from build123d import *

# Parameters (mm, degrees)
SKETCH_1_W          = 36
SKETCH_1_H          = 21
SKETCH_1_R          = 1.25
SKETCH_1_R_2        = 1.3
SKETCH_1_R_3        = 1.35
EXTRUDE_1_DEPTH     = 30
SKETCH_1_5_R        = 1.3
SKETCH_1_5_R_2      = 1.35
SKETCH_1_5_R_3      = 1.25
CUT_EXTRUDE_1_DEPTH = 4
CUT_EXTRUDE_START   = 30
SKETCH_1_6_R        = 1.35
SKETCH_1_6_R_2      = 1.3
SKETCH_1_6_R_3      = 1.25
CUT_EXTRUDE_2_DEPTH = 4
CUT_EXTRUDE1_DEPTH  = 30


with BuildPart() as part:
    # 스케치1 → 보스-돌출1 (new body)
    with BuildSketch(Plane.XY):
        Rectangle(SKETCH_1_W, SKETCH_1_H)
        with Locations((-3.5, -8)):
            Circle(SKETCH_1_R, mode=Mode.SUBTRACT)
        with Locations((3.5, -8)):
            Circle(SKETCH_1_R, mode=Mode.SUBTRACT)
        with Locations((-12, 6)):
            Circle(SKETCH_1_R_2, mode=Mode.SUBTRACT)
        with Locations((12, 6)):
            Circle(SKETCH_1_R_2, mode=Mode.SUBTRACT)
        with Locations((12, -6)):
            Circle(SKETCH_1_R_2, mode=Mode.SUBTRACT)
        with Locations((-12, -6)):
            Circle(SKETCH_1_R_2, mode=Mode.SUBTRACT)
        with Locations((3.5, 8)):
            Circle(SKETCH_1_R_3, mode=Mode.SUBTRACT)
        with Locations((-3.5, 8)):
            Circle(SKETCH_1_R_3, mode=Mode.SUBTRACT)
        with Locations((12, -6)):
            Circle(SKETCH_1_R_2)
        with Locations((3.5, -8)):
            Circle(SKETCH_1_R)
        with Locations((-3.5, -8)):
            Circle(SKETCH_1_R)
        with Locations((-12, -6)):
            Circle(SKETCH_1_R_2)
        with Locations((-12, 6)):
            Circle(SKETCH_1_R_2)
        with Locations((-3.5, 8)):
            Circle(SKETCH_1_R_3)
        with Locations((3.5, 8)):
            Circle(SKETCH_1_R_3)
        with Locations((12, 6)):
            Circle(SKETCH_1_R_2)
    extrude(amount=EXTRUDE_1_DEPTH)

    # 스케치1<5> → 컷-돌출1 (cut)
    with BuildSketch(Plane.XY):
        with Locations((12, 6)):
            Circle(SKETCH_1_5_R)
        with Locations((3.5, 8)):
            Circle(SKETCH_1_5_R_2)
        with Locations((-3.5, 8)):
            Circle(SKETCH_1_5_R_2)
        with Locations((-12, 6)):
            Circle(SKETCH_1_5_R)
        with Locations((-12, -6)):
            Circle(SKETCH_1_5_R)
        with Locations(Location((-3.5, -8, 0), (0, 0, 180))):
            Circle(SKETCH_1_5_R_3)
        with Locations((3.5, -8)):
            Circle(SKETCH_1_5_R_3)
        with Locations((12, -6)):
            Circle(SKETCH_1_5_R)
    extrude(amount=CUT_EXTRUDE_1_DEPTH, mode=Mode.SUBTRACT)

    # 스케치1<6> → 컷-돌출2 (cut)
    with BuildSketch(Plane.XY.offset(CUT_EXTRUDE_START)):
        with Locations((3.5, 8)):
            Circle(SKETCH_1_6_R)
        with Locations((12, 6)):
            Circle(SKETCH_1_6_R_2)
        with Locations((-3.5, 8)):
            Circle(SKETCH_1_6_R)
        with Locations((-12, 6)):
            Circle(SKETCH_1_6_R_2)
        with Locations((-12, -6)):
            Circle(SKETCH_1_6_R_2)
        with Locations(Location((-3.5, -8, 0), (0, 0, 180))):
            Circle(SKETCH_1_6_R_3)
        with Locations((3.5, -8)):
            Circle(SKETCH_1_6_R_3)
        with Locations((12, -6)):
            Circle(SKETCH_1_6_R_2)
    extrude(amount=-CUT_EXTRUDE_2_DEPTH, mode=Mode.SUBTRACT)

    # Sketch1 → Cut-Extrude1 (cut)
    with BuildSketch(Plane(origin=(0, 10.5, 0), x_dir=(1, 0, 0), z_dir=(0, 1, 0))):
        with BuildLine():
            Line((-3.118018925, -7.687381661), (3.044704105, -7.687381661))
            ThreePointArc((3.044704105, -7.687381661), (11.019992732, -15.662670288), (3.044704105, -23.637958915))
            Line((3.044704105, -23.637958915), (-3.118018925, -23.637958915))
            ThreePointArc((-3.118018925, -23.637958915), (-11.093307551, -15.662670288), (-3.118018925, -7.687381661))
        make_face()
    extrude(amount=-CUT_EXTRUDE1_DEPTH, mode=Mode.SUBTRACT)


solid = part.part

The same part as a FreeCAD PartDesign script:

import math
import FreeCAD as App
import Part
import Sketcher


def add_polygon(sketch, points):
    """Adds a closed chain of lines whose ends are joined by coincident constraints."""
    first, n = sketch.GeometryCount, len(points)
    for a, b in zip(points, points[1:] + points[:1]):
        sketch.addGeometry(Part.LineSegment(App.Vector(*a, 0), App.Vector(*b, 0)), False)
    for i in range(n):
        sketch.addConstraint(Sketcher.Constraint("Coincident", first + i, 2, first + (i + 1) % n, 1))

doc = App.newDocument("Part")
body = doc.addObject("PartDesign::Body", "Body")

sketch1 = body.newObject("Sketcher::SketchObject", "Sketch")
sketch1.AttachmentSupport = (doc.getObject("XY_Plane"), [""])
sketch1.MapMode = "FlatFace"
add_polygon(sketch1, [(-18, 10.5), (-18, -10.5), (18, -10.5), (18, 10.5)])
sketch1.addConstraint(Sketcher.Constraint("Vertical", 0))
sketch1.addConstraint(Sketcher.Constraint("Horizontal", 1))
sketch1.addConstraint(Sketcher.Constraint("Vertical", 2))
sketch1.addConstraint(Sketcher.Constraint("Horizontal", 3))
sketch1.addConstraint(Sketcher.Constraint("Symmetric", 0, 2, 2, 2, -1, 1))
sketch1.addConstraint(Sketcher.Constraint("DistanceX", 1, 1, 1, 2, 36.0))
sketch1.addConstraint(Sketcher.Constraint("DistanceY", 0, 2, 0, 1, 21.0))
pad1 = body.newObject("PartDesign::Pad", "Pad")
pad1.Profile = sketch1
pad1.Length = 30

sketch2 = body.newObject("Sketcher::SketchObject", "Sketch001")
sketch2.AttachmentSupport = (doc.getObject("XY_Plane"), [""])
sketch2.MapMode = "FlatFace"
sketch2.addGeometry(Part.Circle(App.Vector(12, 6, 0), App.Vector(0, 0, 1), 1.3), False)
sketch2.addGeometry(Part.Circle(App.Vector(3.5, 8, 0), App.Vector(0, 0, 1), 1.35), False)
sketch2.addGeometry(Part.Circle(App.Vector(-3.5, 8, 0), App.Vector(0, 0, 1), 1.35), False)
sketch2.addGeometry(Part.Circle(App.Vector(-12, 6, 0), App.Vector(0, 0, 1), 1.3), False)
sketch2.addGeometry(Part.Circle(App.Vector(-12, -6, 0), App.Vector(0, 0, 1), 1.3), False)
sketch2.addGeometry(Part.Circle(App.Vector(-3.5, -8, 0), App.Vector(0, 0, 1), 1.25), False)
sketch2.addGeometry(Part.Circle(App.Vector(3.5, -8, 0), App.Vector(0, 0, 1), 1.25), False)
sketch2.addGeometry(Part.Circle(App.Vector(12, -6, 0), App.Vector(0, 0, 1), 1.3), False)
sketch2.addConstraint(Sketcher.Constraint("Equal", 1, 2))
sketch2.addConstraint(Sketcher.Constraint("Equal", 0, 3))
sketch2.addConstraint(Sketcher.Constraint("Equal", 3, 4))
sketch2.addConstraint(Sketcher.Constraint("Equal", 5, 6))
sketch2.addConstraint(Sketcher.Constraint("Equal", 4, 7))
sketch2.addConstraint(Sketcher.Constraint("Symmetric", 0, 3, 4, 3, -1, 1))
sketch2.addConstraint(Sketcher.Constraint("Symmetric", 1, 3, 5, 3, -1, 1))
sketch2.addConstraint(Sketcher.Constraint("Symmetric", 2, 3, 6, 3, -1, 1))
sketch2.addConstraint(Sketcher.Constraint("Symmetric", 3, 3, 7, 3, -1, 1))
sketch2.addConstraint(Sketcher.Constraint("Symmetric", 1, 3, 2, 3, -2))
sketch2.addConstraint(Sketcher.Constraint("Symmetric", 0, 3, 3, 3, -2))
sketch2.addConstraint(Sketcher.Constraint("Diameter", 0, 2.6))
sketch2.addConstraint(Sketcher.Constraint("Diameter", 1, 2.7))
sketch2.addConstraint(Sketcher.Constraint("Diameter", 5, 2.5))
sketch2.addConstraint(Sketcher.Constraint("DistanceX", -1, 1, 0, 3, 12.0))
sketch2.addConstraint(Sketcher.Constraint("DistanceY", -1, 1, 0, 3, 6.0))
sketch2.addConstraint(Sketcher.Constraint("DistanceY", -1, 1, 1, 3, 8.0))
sketch2.addConstraint(Sketcher.Constraint("DistanceX", 2, 3, 1, 3, 7.0))
pocket1 = body.newObject("PartDesign::Pocket", "Pocket")
pocket1.Profile = sketch2
pocket1.Length = 4
pocket1.Reversed = True

sketch3 = body.newObject("Sketcher::SketchObject", "Sketch002")
sketch3.AttachmentSupport = (doc.getObject("XY_Plane"), [""])
sketch3.MapMode = "FlatFace"
sketch3.AttachmentOffset = App.Placement(App.Vector(0, 0, 30), App.Rotation())
sketch3.addGeometry(Part.Circle(App.Vector(3.5, 8, 0), App.Vector(0, 0, 1), 1.35), False)
sketch3.addGeometry(Part.Circle(App.Vector(12, 6, 0), App.Vector(0, 0, 1), 1.3), False)
sketch3.addGeometry(Part.Circle(App.Vector(-3.5, 8, 0), App.Vector(0, 0, 1), 1.35), False)
sketch3.addGeometry(Part.Circle(App.Vector(-12, 6, 0), App.Vector(0, 0, 1), 1.3), False)
sketch3.addGeometry(Part.Circle(App.Vector(-12, -6, 0), App.Vector(0, 0, 1), 1.3), False)
sketch3.addGeometry(Part.Circle(App.Vector(-3.5, -8, 0), App.Vector(0, 0, 1), 1.25), False)
sketch3.addGeometry(Part.Circle(App.Vector(3.5, -8, 0), App.Vector(0, 0, 1), 1.25), False)
sketch3.addGeometry(Part.Circle(App.Vector(12, -6, 0), App.Vector(0, 0, 1), 1.3), False)
sketch3.addConstraint(Sketcher.Constraint("Equal", 0, 2))
sketch3.addConstraint(Sketcher.Constraint("Equal", 1, 3))
sketch3.addConstraint(Sketcher.Constraint("Equal", 3, 4))
sketch3.addConstraint(Sketcher.Constraint("Equal", 5, 6))
sketch3.addConstraint(Sketcher.Constraint("Equal", 4, 7))
sketch3.addConstraint(Sketcher.Constraint("Symmetric", 1, 3, 4, 3, -1, 1))
sketch3.addConstraint(Sketcher.Constraint("Symmetric", 0, 3, 5, 3, -1, 1))
sketch3.addConstraint(Sketcher.Constraint("Symmetric", 2, 3, 6, 3, -1, 1))
sketch3.addConstraint(Sketcher.Constraint("Symmetric", 3, 3, 7, 3, -1, 1))
sketch3.addConstraint(Sketcher.Constraint("Symmetric", 0, 3, 2, 3, -2))
sketch3.addConstraint(Sketcher.Constraint("Symmetric", 1, 3, 3, 3, -2))
sketch3.addConstraint(Sketcher.Constraint("Diameter", 0, 2.7))
sketch3.addConstraint(Sketcher.Constraint("Diameter", 1, 2.6))
sketch3.addConstraint(Sketcher.Constraint("Diameter", 5, 2.5))
sketch3.addConstraint(Sketcher.Constraint("DistanceY", -1, 1, 0, 3, 8.0))
sketch3.addConstraint(Sketcher.Constraint("DistanceX", -1, 1, 1, 3, 12.0))
sketch3.addConstraint(Sketcher.Constraint("DistanceY", -1, 1, 1, 3, 6.0))
sketch3.addConstraint(Sketcher.Constraint("DistanceX", 2, 3, 0, 3, 7.0))
pocket2 = body.newObject("PartDesign::Pocket", "Pocket001")
pocket2.Profile = sketch3
pocket2.Length = 4

sketch4 = body.newObject("Sketcher::SketchObject", "Sketch003")
sketch4.AttachmentSupport = (doc.getObject("XZ_Plane"), [""])
sketch4.MapMode = "FlatFace"
sketch4.AttachmentOffset = App.Placement(App.Vector(0, 0, -10.5), App.Rotation())
sketch4.addGeometry(Part.LineSegment(App.Vector(3.044704, 7.687382, 0), App.Vector(-3.118019, 7.687382, 0)), False)
sketch4.addGeometry(Part.ArcOfCircle(Part.Circle(App.Vector(-3.118019, 15.66267, 0), App.Vector(0, 0, 1), 7.975289), math.radians(90), math.radians(270)), False)
sketch4.addGeometry(Part.LineSegment(App.Vector(-3.118019, 23.637959, 0), App.Vector(3.044704, 23.637959, 0)), False)
sketch4.addGeometry(Part.ArcOfCircle(Part.Circle(App.Vector(3.044704, 15.66267, 0), App.Vector(0, 0, 1), 7.975289), math.radians(-90), math.radians(90)), False)
sketch4.addConstraint(Sketcher.Constraint("Tangent", 0, 2, 1, 2))
sketch4.addConstraint(Sketcher.Constraint("Tangent", 1, 1, 2, 1))
sketch4.addConstraint(Sketcher.Constraint("Tangent", 2, 2, 3, 2))
sketch4.addConstraint(Sketcher.Constraint("Tangent", 3, 1, 0, 1))
sketch4.addConstraint(Sketcher.Constraint("Horizontal", 0))
sketch4.addConstraint(Sketcher.Constraint("Horizontal", 2))
sketch4.addConstraint(Sketcher.Constraint("Radius", 1, 7.975289))
sketch4.addConstraint(Sketcher.Constraint("DistanceX", 0, 2, 0, 1, 6.162723))
sketch4.addConstraint(Sketcher.Constraint("DistanceX", 1, 3, -1, 1, 3.118019))
sketch4.addConstraint(Sketcher.Constraint("DistanceY", -1, 1, 1, 3, 15.66267))
pocket3 = body.newObject("PartDesign::Pocket", "Pocket002")
pocket3.Profile = sketch4
pocket3.Length = 30
pocket3.Reversed = True

doc.recompute()
